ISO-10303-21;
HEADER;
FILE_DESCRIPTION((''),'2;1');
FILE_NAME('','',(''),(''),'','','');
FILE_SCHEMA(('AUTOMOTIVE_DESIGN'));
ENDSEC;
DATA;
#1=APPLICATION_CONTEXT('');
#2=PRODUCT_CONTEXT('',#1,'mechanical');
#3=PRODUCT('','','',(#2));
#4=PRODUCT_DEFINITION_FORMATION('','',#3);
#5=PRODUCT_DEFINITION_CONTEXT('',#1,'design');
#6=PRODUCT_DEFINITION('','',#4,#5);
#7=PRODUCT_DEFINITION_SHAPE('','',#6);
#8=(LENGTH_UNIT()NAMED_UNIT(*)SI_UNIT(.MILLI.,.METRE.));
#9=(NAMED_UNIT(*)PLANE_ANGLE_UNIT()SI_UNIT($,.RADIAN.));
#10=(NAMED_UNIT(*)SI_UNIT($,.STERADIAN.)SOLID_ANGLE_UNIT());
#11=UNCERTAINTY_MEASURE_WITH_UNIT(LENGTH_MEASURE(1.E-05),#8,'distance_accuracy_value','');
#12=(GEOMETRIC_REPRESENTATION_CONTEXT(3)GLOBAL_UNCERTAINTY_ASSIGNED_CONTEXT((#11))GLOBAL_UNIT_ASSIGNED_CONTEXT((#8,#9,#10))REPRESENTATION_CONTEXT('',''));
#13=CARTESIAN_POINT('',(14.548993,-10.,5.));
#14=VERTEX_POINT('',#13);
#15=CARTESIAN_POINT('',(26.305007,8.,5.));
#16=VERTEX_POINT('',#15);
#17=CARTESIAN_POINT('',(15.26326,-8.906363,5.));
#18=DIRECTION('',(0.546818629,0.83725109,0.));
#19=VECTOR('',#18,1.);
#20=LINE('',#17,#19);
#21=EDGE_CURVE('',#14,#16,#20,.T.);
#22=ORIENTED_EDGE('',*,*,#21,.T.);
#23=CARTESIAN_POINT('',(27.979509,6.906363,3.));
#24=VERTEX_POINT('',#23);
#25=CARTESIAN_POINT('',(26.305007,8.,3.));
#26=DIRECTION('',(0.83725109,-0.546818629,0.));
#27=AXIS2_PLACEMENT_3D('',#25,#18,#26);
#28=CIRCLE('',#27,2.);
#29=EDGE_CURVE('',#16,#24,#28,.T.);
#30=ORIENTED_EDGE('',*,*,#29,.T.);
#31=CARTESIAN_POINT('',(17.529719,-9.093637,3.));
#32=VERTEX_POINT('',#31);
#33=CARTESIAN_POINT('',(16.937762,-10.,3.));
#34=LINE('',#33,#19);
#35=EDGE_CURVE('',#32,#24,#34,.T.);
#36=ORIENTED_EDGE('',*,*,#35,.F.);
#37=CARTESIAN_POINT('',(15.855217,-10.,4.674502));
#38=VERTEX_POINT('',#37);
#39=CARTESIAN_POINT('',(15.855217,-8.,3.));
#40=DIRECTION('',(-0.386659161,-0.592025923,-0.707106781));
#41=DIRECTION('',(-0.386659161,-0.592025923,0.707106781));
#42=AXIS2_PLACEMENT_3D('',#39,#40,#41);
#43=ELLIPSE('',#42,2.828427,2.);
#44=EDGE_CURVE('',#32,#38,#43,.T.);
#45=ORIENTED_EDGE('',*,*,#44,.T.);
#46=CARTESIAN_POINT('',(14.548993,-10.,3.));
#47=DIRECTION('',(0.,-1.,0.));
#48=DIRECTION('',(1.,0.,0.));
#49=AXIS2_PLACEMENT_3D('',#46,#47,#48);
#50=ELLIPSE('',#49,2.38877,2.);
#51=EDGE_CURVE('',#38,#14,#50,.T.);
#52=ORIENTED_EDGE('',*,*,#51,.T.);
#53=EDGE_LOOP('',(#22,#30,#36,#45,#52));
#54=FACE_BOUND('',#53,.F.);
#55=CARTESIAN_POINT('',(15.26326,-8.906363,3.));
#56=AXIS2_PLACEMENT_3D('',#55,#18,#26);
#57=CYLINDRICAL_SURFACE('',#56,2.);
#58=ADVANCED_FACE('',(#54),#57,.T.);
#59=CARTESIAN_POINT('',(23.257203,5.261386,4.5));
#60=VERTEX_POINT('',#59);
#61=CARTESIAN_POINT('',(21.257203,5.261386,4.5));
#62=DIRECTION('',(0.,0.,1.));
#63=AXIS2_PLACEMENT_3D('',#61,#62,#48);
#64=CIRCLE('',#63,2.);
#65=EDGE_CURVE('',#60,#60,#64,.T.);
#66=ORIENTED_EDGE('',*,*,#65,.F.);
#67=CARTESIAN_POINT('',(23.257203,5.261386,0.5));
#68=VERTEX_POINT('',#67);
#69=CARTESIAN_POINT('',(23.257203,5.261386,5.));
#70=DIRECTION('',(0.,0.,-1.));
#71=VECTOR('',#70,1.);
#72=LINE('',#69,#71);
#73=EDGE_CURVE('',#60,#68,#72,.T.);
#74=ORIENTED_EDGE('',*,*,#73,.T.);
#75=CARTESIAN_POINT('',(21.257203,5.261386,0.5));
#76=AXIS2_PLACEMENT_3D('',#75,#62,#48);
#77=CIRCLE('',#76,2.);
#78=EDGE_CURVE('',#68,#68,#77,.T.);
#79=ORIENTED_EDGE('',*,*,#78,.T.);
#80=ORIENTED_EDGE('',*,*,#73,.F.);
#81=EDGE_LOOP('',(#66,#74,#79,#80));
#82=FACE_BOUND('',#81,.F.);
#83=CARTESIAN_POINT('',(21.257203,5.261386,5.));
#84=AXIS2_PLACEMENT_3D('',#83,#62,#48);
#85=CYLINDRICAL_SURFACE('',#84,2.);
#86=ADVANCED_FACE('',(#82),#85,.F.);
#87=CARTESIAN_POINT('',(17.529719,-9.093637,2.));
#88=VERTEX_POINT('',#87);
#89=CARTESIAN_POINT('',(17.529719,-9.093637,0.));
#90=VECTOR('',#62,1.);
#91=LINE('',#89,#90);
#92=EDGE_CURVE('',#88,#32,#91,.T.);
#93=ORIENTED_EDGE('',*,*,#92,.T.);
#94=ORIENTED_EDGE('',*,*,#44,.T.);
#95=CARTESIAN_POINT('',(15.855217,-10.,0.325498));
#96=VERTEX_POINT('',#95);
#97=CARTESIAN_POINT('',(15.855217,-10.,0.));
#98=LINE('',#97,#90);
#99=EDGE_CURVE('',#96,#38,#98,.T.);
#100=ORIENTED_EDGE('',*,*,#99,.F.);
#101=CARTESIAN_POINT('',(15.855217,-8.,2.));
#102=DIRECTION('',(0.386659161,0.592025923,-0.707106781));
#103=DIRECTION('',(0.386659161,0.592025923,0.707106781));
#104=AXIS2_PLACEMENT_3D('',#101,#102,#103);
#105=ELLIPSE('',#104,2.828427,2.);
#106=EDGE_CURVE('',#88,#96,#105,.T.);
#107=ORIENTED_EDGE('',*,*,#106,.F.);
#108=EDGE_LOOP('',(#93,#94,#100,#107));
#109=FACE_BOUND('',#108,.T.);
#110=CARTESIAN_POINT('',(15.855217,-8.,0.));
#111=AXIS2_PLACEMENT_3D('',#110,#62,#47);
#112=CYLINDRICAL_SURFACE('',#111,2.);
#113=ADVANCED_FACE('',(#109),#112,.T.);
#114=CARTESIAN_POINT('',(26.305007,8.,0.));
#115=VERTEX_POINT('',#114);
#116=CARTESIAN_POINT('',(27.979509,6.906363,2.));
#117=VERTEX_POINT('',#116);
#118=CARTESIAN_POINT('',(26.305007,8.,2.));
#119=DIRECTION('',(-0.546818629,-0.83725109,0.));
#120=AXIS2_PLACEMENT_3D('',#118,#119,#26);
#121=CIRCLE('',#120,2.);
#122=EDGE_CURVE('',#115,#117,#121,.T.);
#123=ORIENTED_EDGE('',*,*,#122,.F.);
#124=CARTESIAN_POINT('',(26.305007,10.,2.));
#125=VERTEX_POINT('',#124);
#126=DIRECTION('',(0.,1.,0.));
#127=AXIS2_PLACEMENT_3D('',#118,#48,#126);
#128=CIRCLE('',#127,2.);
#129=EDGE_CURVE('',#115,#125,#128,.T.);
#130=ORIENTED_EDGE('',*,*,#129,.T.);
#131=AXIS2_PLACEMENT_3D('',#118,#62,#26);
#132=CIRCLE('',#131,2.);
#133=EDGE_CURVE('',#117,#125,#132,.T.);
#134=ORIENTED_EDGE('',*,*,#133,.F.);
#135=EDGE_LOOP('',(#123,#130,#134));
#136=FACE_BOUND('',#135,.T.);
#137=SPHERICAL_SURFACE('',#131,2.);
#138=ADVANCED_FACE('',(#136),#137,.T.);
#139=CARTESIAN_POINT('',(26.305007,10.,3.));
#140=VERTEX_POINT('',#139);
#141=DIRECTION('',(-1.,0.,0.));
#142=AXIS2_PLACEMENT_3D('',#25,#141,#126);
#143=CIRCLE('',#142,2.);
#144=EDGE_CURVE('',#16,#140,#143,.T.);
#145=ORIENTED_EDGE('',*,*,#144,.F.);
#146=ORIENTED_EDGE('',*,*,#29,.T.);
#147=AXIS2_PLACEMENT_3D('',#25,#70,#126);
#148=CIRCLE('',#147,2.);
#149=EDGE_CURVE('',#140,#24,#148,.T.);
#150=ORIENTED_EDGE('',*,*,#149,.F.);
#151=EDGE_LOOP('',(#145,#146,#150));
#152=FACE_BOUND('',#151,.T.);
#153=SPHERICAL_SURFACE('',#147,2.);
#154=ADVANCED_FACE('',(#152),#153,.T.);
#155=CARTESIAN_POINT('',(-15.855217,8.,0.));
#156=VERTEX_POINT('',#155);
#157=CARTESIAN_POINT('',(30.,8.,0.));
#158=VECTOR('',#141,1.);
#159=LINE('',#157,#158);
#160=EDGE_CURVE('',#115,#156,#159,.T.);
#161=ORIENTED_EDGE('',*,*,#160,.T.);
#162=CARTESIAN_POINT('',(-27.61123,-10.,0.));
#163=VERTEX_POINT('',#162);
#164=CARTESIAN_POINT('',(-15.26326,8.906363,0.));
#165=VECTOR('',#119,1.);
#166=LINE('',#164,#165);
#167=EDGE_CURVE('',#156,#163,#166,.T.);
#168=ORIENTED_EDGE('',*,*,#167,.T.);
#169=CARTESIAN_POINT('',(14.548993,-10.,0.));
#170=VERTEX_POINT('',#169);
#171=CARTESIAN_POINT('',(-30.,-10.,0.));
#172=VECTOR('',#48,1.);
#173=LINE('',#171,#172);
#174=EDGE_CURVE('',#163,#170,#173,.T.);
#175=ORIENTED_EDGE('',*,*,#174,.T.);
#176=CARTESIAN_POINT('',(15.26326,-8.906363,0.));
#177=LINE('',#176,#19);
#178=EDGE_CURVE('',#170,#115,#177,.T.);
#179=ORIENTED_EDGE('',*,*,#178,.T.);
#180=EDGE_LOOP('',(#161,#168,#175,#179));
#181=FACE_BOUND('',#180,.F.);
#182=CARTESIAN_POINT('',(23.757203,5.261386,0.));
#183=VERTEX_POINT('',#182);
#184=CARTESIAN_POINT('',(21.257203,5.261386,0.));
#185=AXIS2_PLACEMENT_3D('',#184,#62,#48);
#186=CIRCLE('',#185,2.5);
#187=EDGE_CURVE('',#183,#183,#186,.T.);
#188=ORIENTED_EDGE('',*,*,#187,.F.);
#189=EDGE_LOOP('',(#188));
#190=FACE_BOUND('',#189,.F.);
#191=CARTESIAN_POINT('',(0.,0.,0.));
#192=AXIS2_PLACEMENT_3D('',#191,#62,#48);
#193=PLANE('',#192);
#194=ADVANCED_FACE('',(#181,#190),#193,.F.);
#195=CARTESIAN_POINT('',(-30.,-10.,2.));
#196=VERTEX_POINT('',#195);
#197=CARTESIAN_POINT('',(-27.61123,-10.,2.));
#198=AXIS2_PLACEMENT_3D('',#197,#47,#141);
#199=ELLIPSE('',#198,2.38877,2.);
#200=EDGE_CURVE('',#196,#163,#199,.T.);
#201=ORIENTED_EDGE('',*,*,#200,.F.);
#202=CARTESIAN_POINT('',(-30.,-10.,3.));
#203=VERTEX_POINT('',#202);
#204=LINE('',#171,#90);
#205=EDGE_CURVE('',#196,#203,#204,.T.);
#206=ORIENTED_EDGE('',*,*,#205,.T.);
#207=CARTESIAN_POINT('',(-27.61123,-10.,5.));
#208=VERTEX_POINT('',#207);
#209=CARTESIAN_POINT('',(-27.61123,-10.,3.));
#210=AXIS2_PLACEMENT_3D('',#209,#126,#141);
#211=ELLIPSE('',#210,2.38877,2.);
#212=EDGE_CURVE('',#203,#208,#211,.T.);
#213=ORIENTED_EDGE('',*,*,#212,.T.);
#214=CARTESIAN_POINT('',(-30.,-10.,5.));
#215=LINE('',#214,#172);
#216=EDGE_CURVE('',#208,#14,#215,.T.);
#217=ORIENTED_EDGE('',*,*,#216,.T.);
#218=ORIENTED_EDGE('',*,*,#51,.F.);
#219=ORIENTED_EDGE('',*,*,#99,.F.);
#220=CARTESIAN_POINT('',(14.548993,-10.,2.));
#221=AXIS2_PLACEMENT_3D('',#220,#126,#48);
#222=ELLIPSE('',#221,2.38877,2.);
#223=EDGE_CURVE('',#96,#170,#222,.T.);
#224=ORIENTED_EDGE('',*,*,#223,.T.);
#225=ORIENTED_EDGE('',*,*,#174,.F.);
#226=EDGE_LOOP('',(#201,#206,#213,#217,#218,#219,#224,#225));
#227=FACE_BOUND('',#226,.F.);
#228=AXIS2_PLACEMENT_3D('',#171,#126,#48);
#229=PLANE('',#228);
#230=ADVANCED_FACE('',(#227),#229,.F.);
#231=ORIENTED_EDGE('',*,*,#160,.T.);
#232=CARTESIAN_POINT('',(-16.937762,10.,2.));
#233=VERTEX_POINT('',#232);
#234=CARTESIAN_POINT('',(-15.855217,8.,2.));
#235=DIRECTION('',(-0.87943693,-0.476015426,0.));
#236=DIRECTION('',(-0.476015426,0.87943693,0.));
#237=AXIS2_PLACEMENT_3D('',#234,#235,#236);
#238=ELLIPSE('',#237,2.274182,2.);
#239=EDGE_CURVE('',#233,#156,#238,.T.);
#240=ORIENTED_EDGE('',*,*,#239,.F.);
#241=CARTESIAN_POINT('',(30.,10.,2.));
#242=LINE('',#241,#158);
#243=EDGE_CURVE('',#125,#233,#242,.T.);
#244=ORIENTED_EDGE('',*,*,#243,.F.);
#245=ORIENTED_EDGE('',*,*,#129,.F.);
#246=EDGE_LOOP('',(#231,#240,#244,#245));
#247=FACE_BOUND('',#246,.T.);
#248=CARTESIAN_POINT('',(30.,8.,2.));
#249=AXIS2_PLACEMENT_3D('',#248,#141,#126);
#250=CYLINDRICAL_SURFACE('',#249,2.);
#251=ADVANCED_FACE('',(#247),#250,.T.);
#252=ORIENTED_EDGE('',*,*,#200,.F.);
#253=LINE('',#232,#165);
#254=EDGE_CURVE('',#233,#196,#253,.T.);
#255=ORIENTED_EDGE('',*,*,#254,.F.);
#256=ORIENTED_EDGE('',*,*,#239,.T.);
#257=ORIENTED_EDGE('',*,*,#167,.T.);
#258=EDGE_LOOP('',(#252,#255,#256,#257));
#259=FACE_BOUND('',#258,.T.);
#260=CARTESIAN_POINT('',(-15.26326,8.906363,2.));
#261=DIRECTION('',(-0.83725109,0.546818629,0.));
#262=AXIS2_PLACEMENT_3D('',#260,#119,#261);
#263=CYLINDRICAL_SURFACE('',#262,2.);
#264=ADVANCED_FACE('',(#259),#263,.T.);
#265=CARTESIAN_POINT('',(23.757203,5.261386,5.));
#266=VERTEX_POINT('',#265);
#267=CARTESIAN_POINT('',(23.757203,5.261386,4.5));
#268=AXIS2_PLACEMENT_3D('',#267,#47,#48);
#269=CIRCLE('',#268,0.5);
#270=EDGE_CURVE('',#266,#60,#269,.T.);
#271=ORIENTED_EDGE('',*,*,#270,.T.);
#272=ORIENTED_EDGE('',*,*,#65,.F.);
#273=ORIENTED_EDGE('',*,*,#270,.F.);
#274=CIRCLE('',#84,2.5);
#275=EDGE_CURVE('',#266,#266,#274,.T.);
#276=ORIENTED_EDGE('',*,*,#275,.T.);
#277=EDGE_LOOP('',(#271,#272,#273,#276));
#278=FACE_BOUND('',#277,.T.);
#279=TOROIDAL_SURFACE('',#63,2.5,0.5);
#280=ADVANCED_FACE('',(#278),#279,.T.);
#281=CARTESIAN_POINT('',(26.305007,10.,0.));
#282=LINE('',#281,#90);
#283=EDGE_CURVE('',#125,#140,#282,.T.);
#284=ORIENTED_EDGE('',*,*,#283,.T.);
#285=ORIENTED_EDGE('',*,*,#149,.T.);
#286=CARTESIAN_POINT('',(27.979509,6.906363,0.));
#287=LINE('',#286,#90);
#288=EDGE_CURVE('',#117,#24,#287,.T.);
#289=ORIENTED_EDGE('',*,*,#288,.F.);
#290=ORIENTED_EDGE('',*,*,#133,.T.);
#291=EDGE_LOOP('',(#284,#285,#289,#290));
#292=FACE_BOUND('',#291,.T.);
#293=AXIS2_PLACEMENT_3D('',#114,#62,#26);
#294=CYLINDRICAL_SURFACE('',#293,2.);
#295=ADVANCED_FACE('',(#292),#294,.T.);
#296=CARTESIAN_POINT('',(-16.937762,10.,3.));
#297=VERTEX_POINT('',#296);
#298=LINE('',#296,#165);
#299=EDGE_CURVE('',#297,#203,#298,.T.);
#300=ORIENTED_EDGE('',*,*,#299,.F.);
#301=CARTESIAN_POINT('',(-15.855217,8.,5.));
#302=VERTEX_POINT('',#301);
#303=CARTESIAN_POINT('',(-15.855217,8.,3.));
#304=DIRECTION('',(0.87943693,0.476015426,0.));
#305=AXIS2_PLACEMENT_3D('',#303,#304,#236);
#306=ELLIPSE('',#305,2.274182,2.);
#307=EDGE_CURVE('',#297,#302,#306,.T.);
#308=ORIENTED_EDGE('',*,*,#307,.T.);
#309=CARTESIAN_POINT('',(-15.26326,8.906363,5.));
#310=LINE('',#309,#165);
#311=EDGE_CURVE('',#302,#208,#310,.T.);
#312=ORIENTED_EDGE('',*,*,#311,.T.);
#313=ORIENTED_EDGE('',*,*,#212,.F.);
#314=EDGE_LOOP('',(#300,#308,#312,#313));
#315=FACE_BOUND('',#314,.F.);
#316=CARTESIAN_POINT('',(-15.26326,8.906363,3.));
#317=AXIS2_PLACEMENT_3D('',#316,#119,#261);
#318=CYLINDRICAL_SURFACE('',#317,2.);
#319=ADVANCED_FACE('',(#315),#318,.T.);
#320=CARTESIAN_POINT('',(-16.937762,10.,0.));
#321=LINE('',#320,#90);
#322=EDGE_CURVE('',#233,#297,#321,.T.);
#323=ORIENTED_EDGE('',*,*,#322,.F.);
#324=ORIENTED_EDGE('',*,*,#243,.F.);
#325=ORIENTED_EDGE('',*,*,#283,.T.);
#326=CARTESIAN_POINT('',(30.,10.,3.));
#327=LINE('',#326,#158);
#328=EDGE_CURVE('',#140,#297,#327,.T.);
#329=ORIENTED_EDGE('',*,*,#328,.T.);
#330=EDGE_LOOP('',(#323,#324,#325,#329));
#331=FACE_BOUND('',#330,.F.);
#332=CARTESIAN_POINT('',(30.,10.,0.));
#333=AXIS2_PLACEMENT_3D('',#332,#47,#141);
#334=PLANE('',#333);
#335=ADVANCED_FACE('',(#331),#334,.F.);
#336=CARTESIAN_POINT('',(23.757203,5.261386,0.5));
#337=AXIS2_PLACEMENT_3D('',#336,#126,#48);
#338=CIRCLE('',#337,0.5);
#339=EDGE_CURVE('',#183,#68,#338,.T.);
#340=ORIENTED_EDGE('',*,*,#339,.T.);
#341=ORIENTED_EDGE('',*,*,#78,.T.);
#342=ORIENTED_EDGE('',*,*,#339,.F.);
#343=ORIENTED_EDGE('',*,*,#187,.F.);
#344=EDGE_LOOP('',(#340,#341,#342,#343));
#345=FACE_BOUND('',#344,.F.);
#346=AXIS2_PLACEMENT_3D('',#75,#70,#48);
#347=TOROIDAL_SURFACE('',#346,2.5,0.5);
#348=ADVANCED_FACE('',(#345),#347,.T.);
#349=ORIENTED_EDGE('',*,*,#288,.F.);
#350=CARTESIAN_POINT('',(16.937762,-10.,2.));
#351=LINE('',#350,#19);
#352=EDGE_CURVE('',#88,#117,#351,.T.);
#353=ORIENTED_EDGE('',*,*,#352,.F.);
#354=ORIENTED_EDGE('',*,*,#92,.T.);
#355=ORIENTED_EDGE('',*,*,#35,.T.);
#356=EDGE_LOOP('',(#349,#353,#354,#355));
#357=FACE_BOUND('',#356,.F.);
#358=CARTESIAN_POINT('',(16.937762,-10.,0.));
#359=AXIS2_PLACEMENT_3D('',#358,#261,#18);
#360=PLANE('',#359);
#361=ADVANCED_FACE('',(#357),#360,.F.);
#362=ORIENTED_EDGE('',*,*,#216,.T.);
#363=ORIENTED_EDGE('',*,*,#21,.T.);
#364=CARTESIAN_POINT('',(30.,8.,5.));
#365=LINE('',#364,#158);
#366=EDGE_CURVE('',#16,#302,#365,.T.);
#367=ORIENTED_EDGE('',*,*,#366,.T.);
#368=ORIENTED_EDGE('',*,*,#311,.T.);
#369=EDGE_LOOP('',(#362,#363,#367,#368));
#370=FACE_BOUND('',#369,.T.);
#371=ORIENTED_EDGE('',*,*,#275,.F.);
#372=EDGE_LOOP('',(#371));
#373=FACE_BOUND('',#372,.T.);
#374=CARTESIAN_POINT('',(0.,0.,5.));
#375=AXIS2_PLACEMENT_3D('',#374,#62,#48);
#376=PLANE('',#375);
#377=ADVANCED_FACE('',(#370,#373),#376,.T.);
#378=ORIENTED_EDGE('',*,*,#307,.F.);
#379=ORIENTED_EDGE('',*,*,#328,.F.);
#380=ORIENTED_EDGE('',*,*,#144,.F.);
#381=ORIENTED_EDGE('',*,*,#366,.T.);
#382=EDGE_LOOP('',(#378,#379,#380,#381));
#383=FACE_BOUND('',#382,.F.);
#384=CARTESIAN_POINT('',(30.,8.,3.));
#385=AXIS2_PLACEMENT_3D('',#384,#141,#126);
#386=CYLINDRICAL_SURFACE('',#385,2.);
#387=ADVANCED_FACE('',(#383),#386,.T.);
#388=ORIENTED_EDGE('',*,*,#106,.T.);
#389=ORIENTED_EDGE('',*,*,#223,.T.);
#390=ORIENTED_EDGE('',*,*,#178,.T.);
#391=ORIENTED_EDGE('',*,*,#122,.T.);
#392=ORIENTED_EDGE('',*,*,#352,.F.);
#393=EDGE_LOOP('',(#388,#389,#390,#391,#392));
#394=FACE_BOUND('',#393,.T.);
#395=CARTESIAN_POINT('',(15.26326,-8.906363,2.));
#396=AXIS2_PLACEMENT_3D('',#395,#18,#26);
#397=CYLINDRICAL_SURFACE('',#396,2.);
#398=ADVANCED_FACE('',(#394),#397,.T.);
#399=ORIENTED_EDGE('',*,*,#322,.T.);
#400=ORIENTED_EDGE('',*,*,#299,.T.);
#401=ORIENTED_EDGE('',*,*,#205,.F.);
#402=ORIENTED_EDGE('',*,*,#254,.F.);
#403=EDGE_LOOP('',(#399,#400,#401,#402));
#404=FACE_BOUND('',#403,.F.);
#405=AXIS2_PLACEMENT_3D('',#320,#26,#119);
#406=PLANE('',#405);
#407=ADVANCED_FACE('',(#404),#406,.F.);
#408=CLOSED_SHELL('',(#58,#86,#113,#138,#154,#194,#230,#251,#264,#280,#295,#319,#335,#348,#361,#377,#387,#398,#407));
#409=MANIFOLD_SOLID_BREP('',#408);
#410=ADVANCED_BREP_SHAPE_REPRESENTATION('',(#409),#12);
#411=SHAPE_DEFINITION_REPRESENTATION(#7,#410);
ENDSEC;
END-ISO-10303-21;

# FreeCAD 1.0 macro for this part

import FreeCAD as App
import Part
import Sketcher

V = App.Vector


def edges_at(feature, points):
    """Names of the edges that pass closest to the given points."""
    edges = feature.Shape.Edges
    near = lambda p: min(range(len(edges)), key=lambda i: edges[i].distToShape(Part.Vertex(*p))[0])
    return sorted({f"Edge{near(p) + 1}" for p in points})


def add_polygon(sketch, points):
    """Adds a closed chain of lines whose ends are joined by coincident constraints."""
    first, n = sketch.GeometryCount, len(points)
    for a, b in zip(points, points[1:] + points[:1]):
        sketch.addGeometry(Part.LineSegment(App.Vector(*a, 0), App.Vector(*b, 0)), False)
    for i in range(n):
        sketch.addConstraint(Sketcher.Constraint("Coincident", first + i, 2, first + (i + 1) % n, 1))

doc = App.newDocument("Part")
body = doc.addObject("PartDesign::Body", "Body")

# Sketch on XY plane
sketch1 = body.newObject("Sketcher::SketchObject", "Sketch")
sketch1.AttachmentSupport = (doc.getObject("XY_Plane"), [""])
sketch1.MapMode = "FlatFace"
add_polygon(sketch1, [(-30, -10), (17, -10), (30, 10), (-17, 10)])  # lines 0-3
sketch1.addConstraint([
    Sketcher.Constraint("Horizontal", 0),
    Sketcher.Constraint("Horizontal", 2),
    Sketcher.Constraint("Symmetric", 0, 2, 2, 2, -1, 1),
    Sketcher.Constraint("Parallel", 1, 3),
    Sketcher.Constraint("DistanceY", 0, 2, -1, 1, 10.0),
    Sketcher.Constraint("DistanceX", -1, 1, 1, 2, 30.0),
    Sketcher.Constraint("DistanceX", 0, 1, 0, 2, 46.937762),
])
pad1 = body.newObject("PartDesign::Pad", "Pad")
pad1.Profile = sketch1
pad1.Length = 5
doc.recompute()

fillet = body.newObject("PartDesign::Fillet", "Fillet")
fillet.Base = (pad1, edges_at(pad1, [
    (6.531, 10, 5),
    (-23.469, 0, 5),
    (23.469, 0, 5),
    (16.938, -10, 2.5),
    (30, 10, 2.5),
    (23.469, 0, 0),
    (6.531, 10, 0),
    (-23.469, 0, 0),
]))
fillet.Radius = 2

# Sketch on XY plane
sketch2 = body.newObject("Sketcher::SketchObject", "Sketch001")
sketch2.AttachmentSupport = (doc.getObject("XY_Plane"), [""])
sketch2.MapMode = "FlatFace"
sketch2.AttachmentOffset = App.Placement(V(0, 0, 5), App.Rotation())
sketch2.addGeometry(Part.Circle(V(21.3, 5.3, 0), V(0, 0, 1), 2), False)
sketch2.addConstraint([
    Sketcher.Constraint("Diameter", 0, 4.0),
    Sketcher.Constraint("DistanceX", -1, 1, 0, 3, 21.257203),
    Sketcher.Constraint("DistanceY", -1, 1, 0, 3, 5.261386),
])
pocket1 = body.newObject("PartDesign::Pocket", "Pocket")
pocket1.Profile = sketch2
pocket1.Length = 25.4
doc.recompute()

fillet2 = body.newObject("PartDesign::Fillet", "Fillet001")
fillet2.Base = (pocket1, edges_at(pocket1, [(19.257, 5.261, 5), (19.257, 5.261, 0)]))
fillet2.Radius = 0.5

doc.recompute()
